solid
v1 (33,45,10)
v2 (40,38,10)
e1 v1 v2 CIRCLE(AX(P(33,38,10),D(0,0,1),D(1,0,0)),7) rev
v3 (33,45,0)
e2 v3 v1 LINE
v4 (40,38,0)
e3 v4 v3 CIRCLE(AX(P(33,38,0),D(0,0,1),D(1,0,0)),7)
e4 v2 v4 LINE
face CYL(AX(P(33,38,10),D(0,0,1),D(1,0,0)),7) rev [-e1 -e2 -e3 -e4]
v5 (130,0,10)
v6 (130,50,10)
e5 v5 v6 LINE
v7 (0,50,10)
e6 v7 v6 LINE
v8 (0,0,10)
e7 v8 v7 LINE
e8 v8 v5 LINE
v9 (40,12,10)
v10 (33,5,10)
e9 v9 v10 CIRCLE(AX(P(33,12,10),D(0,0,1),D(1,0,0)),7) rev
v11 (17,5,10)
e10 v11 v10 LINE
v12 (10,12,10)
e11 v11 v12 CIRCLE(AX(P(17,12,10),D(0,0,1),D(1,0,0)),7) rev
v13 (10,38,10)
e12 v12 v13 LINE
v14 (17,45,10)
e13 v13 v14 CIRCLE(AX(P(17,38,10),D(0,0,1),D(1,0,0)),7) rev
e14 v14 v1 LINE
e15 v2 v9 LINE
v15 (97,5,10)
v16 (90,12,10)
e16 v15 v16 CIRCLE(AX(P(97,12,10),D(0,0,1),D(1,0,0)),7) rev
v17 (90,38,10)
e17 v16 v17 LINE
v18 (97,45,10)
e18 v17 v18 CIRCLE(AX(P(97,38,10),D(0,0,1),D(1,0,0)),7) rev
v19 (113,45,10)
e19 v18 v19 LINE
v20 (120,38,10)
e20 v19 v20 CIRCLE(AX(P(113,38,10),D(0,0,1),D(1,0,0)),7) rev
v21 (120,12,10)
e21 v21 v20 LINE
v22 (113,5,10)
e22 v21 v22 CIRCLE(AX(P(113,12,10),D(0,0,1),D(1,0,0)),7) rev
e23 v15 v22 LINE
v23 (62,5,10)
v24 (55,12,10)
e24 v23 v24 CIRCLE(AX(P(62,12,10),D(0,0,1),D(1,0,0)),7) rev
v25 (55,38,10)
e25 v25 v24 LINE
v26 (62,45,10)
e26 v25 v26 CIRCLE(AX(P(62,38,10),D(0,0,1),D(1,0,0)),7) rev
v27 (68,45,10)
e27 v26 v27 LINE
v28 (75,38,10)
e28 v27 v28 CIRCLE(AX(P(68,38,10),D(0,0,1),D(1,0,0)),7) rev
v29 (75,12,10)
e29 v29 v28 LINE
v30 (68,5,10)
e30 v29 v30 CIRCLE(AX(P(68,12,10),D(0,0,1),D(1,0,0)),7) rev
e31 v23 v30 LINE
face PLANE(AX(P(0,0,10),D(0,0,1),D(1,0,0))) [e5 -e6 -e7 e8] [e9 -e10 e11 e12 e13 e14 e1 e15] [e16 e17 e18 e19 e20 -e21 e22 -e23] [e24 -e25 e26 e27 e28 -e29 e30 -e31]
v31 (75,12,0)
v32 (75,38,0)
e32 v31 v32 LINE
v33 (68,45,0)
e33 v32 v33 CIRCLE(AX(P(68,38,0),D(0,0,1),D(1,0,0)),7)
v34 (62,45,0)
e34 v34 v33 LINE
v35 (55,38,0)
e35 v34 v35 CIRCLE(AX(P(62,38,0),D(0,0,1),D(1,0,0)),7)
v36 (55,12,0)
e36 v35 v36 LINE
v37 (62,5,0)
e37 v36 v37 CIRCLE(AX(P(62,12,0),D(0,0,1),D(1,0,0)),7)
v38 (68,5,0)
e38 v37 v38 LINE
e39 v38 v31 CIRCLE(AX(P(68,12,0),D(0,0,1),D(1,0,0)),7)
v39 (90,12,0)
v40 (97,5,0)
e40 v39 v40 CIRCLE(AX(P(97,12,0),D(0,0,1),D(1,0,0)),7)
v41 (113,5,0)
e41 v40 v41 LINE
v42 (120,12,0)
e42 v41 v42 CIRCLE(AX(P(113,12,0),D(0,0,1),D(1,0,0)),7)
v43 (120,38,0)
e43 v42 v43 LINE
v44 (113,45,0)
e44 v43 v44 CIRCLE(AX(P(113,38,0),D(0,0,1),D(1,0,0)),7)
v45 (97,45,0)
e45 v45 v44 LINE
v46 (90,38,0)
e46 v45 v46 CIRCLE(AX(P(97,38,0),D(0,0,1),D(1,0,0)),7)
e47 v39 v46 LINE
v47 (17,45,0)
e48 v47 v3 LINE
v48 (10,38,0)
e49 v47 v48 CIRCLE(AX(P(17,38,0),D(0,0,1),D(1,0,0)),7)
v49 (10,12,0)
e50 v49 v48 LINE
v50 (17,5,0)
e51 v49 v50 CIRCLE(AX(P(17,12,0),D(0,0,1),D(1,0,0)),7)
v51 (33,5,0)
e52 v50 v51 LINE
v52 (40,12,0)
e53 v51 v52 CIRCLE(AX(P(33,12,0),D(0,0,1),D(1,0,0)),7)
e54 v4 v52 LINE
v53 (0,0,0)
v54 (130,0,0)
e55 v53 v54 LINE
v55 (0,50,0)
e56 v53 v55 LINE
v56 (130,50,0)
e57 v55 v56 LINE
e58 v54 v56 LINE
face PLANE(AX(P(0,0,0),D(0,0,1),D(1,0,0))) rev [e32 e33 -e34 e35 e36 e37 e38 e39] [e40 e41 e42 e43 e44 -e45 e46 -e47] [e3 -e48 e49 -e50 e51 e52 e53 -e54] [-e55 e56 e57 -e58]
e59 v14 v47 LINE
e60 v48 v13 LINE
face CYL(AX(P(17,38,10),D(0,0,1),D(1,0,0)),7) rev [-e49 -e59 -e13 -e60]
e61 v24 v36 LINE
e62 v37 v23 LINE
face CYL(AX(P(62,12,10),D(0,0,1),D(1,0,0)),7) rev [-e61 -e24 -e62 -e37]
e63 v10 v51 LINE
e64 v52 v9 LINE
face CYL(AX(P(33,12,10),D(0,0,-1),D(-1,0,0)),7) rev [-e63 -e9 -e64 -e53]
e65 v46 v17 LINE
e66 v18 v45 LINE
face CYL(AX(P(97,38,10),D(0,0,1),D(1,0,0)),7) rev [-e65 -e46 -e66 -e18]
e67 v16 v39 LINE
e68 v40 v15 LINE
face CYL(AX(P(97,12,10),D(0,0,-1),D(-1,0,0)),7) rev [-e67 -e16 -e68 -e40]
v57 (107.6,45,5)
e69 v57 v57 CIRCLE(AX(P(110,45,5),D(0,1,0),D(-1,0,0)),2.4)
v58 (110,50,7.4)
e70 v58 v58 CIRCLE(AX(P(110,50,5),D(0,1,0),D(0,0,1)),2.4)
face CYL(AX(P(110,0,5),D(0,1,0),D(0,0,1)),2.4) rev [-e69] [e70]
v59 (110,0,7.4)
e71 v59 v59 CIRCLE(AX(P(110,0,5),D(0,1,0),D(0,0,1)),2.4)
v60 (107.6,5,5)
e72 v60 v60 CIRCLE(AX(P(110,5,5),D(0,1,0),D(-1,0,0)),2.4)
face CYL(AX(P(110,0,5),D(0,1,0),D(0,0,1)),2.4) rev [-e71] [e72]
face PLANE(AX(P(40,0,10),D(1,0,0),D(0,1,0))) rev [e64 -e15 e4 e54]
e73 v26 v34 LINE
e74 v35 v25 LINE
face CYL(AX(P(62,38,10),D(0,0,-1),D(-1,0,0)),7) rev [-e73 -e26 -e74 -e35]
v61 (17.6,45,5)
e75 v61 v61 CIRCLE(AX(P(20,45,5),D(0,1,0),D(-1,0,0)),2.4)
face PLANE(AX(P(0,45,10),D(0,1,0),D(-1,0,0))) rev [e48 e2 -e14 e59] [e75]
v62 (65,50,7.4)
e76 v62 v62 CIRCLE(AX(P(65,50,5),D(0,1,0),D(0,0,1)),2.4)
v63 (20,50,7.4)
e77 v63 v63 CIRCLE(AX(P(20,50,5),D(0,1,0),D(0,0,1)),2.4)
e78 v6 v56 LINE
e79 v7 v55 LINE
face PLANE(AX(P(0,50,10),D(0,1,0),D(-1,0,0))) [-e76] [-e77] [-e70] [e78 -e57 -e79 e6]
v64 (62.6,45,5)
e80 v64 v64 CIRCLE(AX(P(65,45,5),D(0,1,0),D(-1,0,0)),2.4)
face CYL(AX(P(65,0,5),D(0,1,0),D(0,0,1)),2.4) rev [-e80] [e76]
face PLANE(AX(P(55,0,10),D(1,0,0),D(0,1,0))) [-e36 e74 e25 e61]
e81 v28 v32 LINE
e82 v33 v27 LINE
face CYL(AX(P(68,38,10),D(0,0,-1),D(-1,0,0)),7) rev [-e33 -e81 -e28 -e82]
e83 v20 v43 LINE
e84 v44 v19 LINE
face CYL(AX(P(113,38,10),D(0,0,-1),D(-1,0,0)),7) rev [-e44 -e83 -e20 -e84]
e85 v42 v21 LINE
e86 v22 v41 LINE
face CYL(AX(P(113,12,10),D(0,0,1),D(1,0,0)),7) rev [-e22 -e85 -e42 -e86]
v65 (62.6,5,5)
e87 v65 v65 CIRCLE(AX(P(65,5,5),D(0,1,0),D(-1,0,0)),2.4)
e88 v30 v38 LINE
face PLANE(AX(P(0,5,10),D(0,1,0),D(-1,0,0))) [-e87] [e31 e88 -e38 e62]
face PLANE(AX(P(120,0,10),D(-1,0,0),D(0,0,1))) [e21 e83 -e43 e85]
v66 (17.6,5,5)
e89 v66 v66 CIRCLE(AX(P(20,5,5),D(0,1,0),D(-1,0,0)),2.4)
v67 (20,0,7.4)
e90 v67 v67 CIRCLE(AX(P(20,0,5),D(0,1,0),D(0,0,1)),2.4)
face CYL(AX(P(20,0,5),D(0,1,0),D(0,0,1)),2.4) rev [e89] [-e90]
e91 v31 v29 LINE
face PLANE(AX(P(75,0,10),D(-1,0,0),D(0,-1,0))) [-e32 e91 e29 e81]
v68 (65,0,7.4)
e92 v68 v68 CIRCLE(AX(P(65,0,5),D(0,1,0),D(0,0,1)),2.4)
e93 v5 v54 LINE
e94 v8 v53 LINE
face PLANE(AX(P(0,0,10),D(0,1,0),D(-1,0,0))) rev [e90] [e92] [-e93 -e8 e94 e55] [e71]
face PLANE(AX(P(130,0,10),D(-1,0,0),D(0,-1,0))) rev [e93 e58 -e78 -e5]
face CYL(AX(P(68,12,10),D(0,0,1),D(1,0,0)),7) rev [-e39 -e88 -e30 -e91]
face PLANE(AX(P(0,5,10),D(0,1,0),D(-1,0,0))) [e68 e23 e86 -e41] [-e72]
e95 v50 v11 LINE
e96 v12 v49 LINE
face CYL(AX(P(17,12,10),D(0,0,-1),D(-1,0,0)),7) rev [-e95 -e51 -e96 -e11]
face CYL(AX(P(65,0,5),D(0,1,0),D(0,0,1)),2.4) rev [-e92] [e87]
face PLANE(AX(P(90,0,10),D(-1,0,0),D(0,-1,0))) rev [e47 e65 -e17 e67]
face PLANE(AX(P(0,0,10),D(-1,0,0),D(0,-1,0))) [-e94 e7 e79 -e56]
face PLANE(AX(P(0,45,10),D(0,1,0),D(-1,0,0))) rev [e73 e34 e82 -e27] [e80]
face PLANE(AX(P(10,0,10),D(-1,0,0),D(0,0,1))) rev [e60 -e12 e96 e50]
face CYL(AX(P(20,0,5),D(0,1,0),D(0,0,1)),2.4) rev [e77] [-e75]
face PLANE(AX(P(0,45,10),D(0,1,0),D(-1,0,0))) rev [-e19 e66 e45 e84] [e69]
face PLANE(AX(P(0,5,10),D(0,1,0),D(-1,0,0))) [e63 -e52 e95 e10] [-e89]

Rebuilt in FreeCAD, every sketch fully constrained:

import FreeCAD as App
import Part
import Sketcher
from FreeCAD import Vector


def edges_at(feature, points):
    """Names of the edges that pass closest to the given points."""
    edges = feature.Shape.Edges
    near = lambda p: min(range(len(edges)), key=lambda i: edges[i].distToShape(Part.Vertex(*p))[0])
    return sorted({f"Edge{near(p) + 1}" for p in points})


def add_polygon(sketch, points):
    """Adds a closed chain of lines whose ends are joined by coincident constraints."""
    first, n = sketch.GeometryCount, len(points)
    for a, b in zip(points, points[1:] + points[:1]):
        sketch.addGeometry(Part.LineSegment(App.Vector(*a, 0), App.Vector(*b, 0)), False)
    for i in range(n):
        sketch.addConstraint(Sketcher.Constraint("Coincident", first + i, 2, first + (i + 1) % n, 1))

doc = App.newDocument("Part")
body = doc.addObject("PartDesign::Body", "Body")

# Sketch on XY plane
sketch1 = body.newObject("Sketcher::SketchObject", "Sketch")
sketch1.AttachmentSupport = (doc.getObject("XY_Plane"), [""])
sketch1.MapMode = "FlatFace"
add_polygon(sketch1, [(0, 50), (0, 0), (130, 0), (130, 50)])  # lines 0-3
add_polygon(sketch1, [(40, 5), (10, 5), (10, 45), (40, 45)])  # lines 4-7
add_polygon(sketch1, [(75, 5), (55, 5), (55, 45), (75, 45)])  # lines 8-11
add_polygon(sketch1, [(120, 5), (90, 5), (90, 45), (120, 45)])  # lines 12-15
sketch1.addConstraint([
    Sketcher.Constraint("Vertical", 0),
    Sketcher.Constraint("Horizontal", 1),
    Sketcher.Constraint("Vertical", 2),
    Sketcher.Constraint("Horizontal", 3),
    Sketcher.Constraint("Horizontal", 4),
    Sketcher.Constraint("Vertical", 5),
    Sketcher.Constraint("Horizontal", 6),
    Sketcher.Constraint("Vertical", 7),
    Sketcher.Constraint("Horizontal", 8),
    Sketcher.Constraint("Vertical", 9),
    Sketcher.Constraint("Horizontal", 10),
    Sketcher.Constraint("Vertical", 11),
    Sketcher.Constraint("Horizontal", 12),
    Sketcher.Constraint("Vertical", 13),
    Sketcher.Constraint("Horizontal", 14),
    Sketcher.Constraint("Vertical", 15),
    Sketcher.Constraint("Coincident", 0, 2, -1, 1),
    Sketcher.Constraint("Horizontal", 7, 2, 8, 2),
    Sketcher.Constraint("Horizontal", 6, 2, 9, 2),
    Sketcher.Constraint("Horizontal", 11, 2, 12, 2),
    Sketcher.Constraint("Horizontal", 10, 2, 13, 2),
    Sketcher.Constraint("Equal", 6, 12),
    Sketcher.Constraint("DistanceX", 1, 1, 1, 2, 130.0),
    Sketcher.Constraint("DistanceX", 4, 2, 4, 1, 30.0),
    Sketcher.Constraint("DistanceX", 8, 2, 8, 1, 20.0),
    Sketcher.Constraint("DistanceY", 0, 2, 0, 1, 50.0),
    Sketcher.Constraint("DistanceY", 5, 1, 5, 2, 40.0),
    Sketcher.Constraint("DistanceX", -1, 1, 4, 2, 10.0),
    Sketcher.Constraint("DistanceY", -1, 1, 4, 2, 5.0),
    Sketcher.Constraint("DistanceX", -1, 1, 8, 2, 55.0),
    Sketcher.Constraint("DistanceX", -1, 1, 12, 2, 90.0),
])
pad1 = body.newObject("PartDesign::Pad", "Pad")
pad1.Profile = sketch1
pad1.Length = 10

# Sketch on XZ plane
sketch2 = body.newObject("Sketcher::SketchObject", "Sketch001")
sketch2.AttachmentSupport = (doc.getObject("XZ_Plane"), [""])
sketch2.MapMode = "FlatFace"
sketch2.AttachmentOffset = App.Placement(Vector(0, 0, -50), App.Rotation())
sketch2.addGeometry([
    Part.Circle(Vector(20, 5, 0), Vector(0, 0, 1), 2.4),
    Part.Circle(Vector(65, 5, 0), Vector(0, 0, 1), 2.4),
    Part.Circle(Vector(110, 5, 0), Vector(0, 0, 1), 2.4),
], False)
sketch2.addConstraint([
    Sketcher.Constraint("Equal", 0, 1),
    Sketcher.Constraint("Equal", 1, 2),
    Sketcher.Constraint("Horizontal", 0, 3, 1, 3),
    Sketcher.Constraint("Horizontal", 1, 3, 2, 3),
    Sketcher.Constraint("Diameter", 0, 4.8),
    Sketcher.Constraint("DistanceX", -1, 1, 0, 3, 20.0),
    Sketcher.Constraint("DistanceY", -1, 1, 0, 3, 5.0),
    Sketcher.Constraint("DistanceX", -1, 1, 1, 3, 65.0),
    Sketcher.Constraint("DistanceX", -1, 1, 2, 3, 110.0),
])
pocket1 = body.newObject("PartDesign::Pocket", "Pocket")
pocket1.Profile = sketch2
pocket1.Type = "ThroughAll"
pocket1.Reversed = True
doc.recompute()

fillet = body.newObject("PartDesign::Fillet", "Fillet")
fillet.Base = (pocket1, edges_at(pocket1, [
    (40, 45, 5),
    (10, 45, 5),
    (10, 5, 5),
    (40, 5, 5),
    (120, 5, 5),
    (120, 45, 5),
    (90, 45, 5),
    (90, 5, 5),
    (75, 5, 5),
    (75, 45, 5),
    (55, 45, 5),
    (55, 5, 5),
]))
fillet.Radius = 7

doc.recompute()
